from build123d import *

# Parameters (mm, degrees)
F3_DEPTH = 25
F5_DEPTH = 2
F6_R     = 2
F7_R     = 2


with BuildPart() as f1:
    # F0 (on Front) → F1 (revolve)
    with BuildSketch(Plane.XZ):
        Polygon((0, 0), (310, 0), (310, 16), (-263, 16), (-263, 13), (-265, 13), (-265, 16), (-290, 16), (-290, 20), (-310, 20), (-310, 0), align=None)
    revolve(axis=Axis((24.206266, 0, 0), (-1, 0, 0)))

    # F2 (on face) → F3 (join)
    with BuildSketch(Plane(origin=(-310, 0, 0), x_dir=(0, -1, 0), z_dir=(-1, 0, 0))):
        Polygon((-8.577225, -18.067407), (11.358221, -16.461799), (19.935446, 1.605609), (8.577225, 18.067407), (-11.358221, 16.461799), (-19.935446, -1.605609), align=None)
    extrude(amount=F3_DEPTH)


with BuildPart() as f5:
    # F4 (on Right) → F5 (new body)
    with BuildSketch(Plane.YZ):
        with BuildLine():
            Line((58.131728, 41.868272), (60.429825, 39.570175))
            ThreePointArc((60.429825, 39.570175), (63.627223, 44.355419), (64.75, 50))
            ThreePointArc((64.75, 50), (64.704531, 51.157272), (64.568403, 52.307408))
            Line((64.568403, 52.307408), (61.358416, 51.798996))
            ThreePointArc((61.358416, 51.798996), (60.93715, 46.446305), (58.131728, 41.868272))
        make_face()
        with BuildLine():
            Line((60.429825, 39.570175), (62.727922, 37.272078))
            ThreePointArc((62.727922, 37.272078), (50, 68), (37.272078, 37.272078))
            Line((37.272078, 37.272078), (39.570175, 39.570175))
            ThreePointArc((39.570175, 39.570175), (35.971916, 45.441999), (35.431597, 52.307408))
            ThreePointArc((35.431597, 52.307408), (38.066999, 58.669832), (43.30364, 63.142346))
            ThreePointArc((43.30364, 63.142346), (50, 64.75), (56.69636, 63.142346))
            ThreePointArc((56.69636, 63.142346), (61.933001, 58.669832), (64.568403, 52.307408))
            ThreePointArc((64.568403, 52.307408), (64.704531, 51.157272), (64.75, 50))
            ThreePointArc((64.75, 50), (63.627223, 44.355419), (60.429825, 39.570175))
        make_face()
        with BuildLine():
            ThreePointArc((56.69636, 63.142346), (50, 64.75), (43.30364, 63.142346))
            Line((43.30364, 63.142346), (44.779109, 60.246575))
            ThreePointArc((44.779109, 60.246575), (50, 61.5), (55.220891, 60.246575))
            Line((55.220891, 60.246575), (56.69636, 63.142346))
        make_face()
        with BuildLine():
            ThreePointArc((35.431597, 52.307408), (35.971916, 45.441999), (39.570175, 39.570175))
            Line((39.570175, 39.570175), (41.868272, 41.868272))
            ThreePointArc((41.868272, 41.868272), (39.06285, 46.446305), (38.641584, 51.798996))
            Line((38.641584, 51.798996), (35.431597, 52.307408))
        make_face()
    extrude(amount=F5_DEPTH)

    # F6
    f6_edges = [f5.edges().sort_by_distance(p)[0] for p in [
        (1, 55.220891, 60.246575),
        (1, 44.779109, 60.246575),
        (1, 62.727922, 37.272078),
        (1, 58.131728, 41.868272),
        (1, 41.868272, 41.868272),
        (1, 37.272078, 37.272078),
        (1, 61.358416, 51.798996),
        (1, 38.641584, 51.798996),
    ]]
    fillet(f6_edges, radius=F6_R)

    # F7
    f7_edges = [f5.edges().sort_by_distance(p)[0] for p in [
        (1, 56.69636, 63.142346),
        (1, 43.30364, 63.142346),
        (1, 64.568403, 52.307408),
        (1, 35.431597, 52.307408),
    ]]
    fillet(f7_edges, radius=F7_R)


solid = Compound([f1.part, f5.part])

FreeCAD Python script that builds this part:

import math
import FreeCAD as App
import Part
import Sketcher
from FreeCAD import Vector
Q = App.Units.Quantity


def edges_at(feature, points):
    """Names of the edges that pass closest to the given points."""
    edges = feature.Shape.Edges
    near = lambda p: min(range(len(edges)), key=lambda i: edges[i].distToShape(Part.Vertex(*p))[0])
    return sorted({f"Edge{near(p) + 1}" for p in points})


def add_polygon(sketch, points):
    """Adds a closed chain of lines whose ends are joined by coincident constraints."""
    first, n = sketch.GeometryCount, len(points)
    for a, b in zip(points, points[1:] + points[:1]):
        sketch.addGeometry(Part.LineSegment(App.Vector(*a, 0), App.Vector(*b, 0)), False)
    for i in range(n):
        sketch.addConstraint(Sketcher.Constraint("Coincident", first + i, 2, first + (i + 1) % n, 1))

doc = App.newDocument("Part")
body = doc.addObject("PartDesign::Body", "Body")

# Sketch on XZ plane
sketch1 = body.newObject("Sketcher::SketchObject", "Sketch")
sketch1.AttachmentSupport = (doc.getObject("XZ_Plane"), [""])
sketch1.MapMode = "FlatFace"
add_polygon(sketch1, [(310, 0), (310, 16), (-263, 16), (-263, 13), (-265, 13), (-265, 16), (-290, 16), (-290, 20), (-310, 20), (-310, 0)])  # lines 0-9
sketch1.addConstraint([
    Sketcher.Constraint("Vertical", 0),
    Sketcher.Constraint("Horizontal", 1),
    Sketcher.Constraint("Vertical", 2),
    Sketcher.Constraint("Horizontal", 3),
    Sketcher.Constraint("Vertical", 4),
    Sketcher.Constraint("Horizontal", 5),
    Sketcher.Constraint("Vertical", 6),
    Sketcher.Constraint("Horizontal", 7),
    Sketcher.Constraint("Vertical", 8),
    Sketcher.Constraint("Horizontal", 9),
    Sketcher.Constraint("Symmetric", 8, 2, 9, 2, -1, 1),
    Sketcher.Constraint("Horizontal", 1, 2, 4, 2),
    Sketcher.Constraint("Equal", 7, 8),
    Sketcher.Constraint("DistanceX", 1, 2, 1, 1, 573.0),
    Sketcher.Constraint("DistanceX", 3, 2, 3, 1, 2.0),
    Sketcher.Constraint("DistanceX", 5, 2, 5, 1, 25.0),
    Sketcher.Constraint("DistanceX", 7, 2, 7, 1, 20.0),
    Sketcher.Constraint("DistanceY", 0, 1, 0, 2, 16.0),
    Sketcher.Constraint("DistanceY", 2, 2, 2, 1, 3.0),
])
revolution = body.newObject("PartDesign::Revolution", "Revolution")
revolution.Profile = sketch1
revolution.ReferenceAxis = (sketch1, ["H_Axis"])
revolution.Angle = 360

# Sketch on YZ plane
sketch2 = body.newObject("Sketcher::SketchObject", "Sketch001")
sketch2.AttachmentSupport = (doc.getObject("YZ_Plane"), [""])
sketch2.MapMode = "FlatFace"
sketch2.AttachmentOffset = App.Placement(Vector(0, 0, -310), App.Rotation())
add_polygon(sketch2, [(9, -18), (-11, -16), (-20, 2), (-9, 18), (11, 16), (20, -2)])  # lines 0-5
sketch2.addConstraint([
    Sketcher.Constraint("Symmetric", 0, 2, 3, 2, -1, 1),
    Sketcher.Constraint("Symmetric", 1, 2, 4, 2, -1, 1),
    Sketcher.Constraint("Symmetric", 2, 2, 5, 2, -1, 1),
    Sketcher.Constraint("Equal", 0, 1),
    Sketcher.Constraint("Equal", 1, 2),
    Sketcher.Constraint("Distance", 0, 20.0),
    Sketcher.Constraint("DistanceY", 0, 2, -1, 1, 16.461799),
    Sketcher.Constraint("DistanceX", 0, 2, -1, 1, 11.358221),
    Sketcher.Constraint("DistanceY", -1, 1, 1, 2, 1.605609),
])
pad1 = body.newObject("PartDesign::Pad", "Pad")
pad1.Profile = sketch2
pad1.Length = 25
pad1.Reversed = True
body2 = doc.addObject("PartDesign::Body", "Body001")

# Sketch on YZ plane
sketch3 = body2.newObject("Sketcher::SketchObject", "Sketch002")
sketch3.AttachmentSupport = (doc.getObject("YZ_Plane001"), [""])
sketch3.MapMode = "FlatFace"
sketch3.addGeometry([
    Part.LineSegment(Vector(58.1, 41.9, 0), Vector(62.7, 37.3, 0)),  # 0
    Part.ArcOfCircle(Part.Circle(Vector(50, 50, 0), Vector(0, 0, 1), 18), math.radians(-45), math.radians(225)),  # 1
    Part.LineSegment(Vector(37.3, 37.3, 0), Vector(41.9, 41.9, 0)),  # 2
    Part.ArcOfCircle(Part.Circle(Vector(50, 50, 0), Vector(0, 0, 1), 11.5), math.radians(171), math.radians(225)),  # 3
    Part.LineSegment(Vector(38.6, 51.8, 0), Vector(35.4, 52.3, 0)),  # 4
    Part.ArcOfCircle(Part.Circle(Vector(50, 50, 0), Vector(0, 0, 1), 14.7), math.radians(117), math.radians(171)),  # 5
    Part.LineSegment(Vector(43.3, 63.1, 0), Vector(44.8, 60.2, 0)),  # 6
    Part.ArcOfCircle(Part.Circle(Vector(50, 50, 0), Vector(0, 0, 1), 11.5), math.radians(63), math.radians(117)),  # 7
    Part.LineSegment(Vector(55.2, 60.2, 0), Vector(56.7, 63.1, 0)),  # 8
    Part.ArcOfCircle(Part.Circle(Vector(50, 50, 0), Vector(0, 0, 1), 14.7), math.radians(9), math.radians(63)),  # 9
    Part.LineSegment(Vector(64.6, 52.3, 0), Vector(61.4, 51.8, 0)),  # 10
    Part.ArcOfCircle(Part.Circle(Vector(50, 50, 0), Vector(0, 0, 1), 11.5), math.radians(-45), math.radians(9)),  # 11
], False)
sketch3.addConstraint([
    Sketcher.Constraint("Coincident", 0, 2, 1, 1),
    Sketcher.Constraint("Coincident", 1, 2, 2, 1),
    Sketcher.Constraint("Coincident", 2, 2, 3, 2),
    Sketcher.Constraint("Coincident", 3, 1, 4, 1),
    Sketcher.Constraint("Coincident", 4, 2, 5, 2),
    Sketcher.Constraint("Coincident", 5, 1, 6, 1),
    Sketcher.Constraint("Coincident", 6, 2, 7, 2),
    Sketcher.Constraint("Coincident", 7, 1, 8, 1),
    Sketcher.Constraint("Coincident", 8, 2, 9, 2),
    Sketcher.Constraint("Coincident", 9, 1, 10, 1),
    Sketcher.Constraint("Coincident", 10, 2, 11, 2),
    Sketcher.Constraint("Coincident", 11, 1, 0, 1),
    Sketcher.Constraint("Coincident", 3, 3, 1, 3),
    Sketcher.Constraint("Coincident", 5, 3, 1, 3),
    Sketcher.Constraint("Coincident", 7, 3, 1, 3),
    Sketcher.Constraint("Coincident", 9, 3, 1, 3),
    Sketcher.Constraint("Coincident", 11, 3, 1, 3),
    Sketcher.Constraint("Equal", 3, 7),
    Sketcher.Constraint("Equal", 5, 9),
    Sketcher.Constraint("Equal", 7, 11),
    Sketcher.Constraint("Perpendicular", 0, 2),
    Sketcher.Constraint("Horizontal", 0, 2, 1, 2),
    Sketcher.Constraint("Horizontal", 6, 2, 7, 1),
    Sketcher.Constraint("Horizontal", 5, 1, 8, 2),
    Sketcher.Constraint("Horizontal", 4, 2, 9, 1),
    Sketcher.Constraint("Horizontal", 3, 1, 10, 2),
    Sketcher.Constraint("Horizontal", 2, 2, 11, 1),
    Sketcher.Constraint("Radius", 1, 18.0),
    Sketcher.Constraint("Radius", 3, 11.500001),
    Sketcher.Constraint("Angle", 4, Q("171 deg")),
    Sketcher.Constraint("Angle", 6, Q("-63 deg")),
    Sketcher.Constraint("Radius", 5, 14.749999),
    Sketcher.Constraint("DistanceX", -1, 1, 1, 3, 50.0),
    Sketcher.Constraint("DistanceY", -1, 1, 1, 3, 50.0),
    Sketcher.Constraint("DistanceX", -1, 1, 1, 2, 37.272078),
    Sketcher.Constraint("DistanceY", -1, 1, 4, 2, 52.307408),
    Sketcher.Constraint("DistanceX", -1, 1, 5, 1, 43.30364),
])
pad2 = body2.newObject("PartDesign::Pad", "Pad001")
pad2.Profile = sketch3
pad2.Length = 2
doc.recompute()

fillet = body2.newObject("PartDesign::Fillet", "Fillet")
fillet.Base = (pad2, edges_at(pad2, [
    (1, 55.221, 60.247),
    (1, 44.779, 60.247),
    (1, 62.728, 37.272),
    (1, 58.132, 41.868),
    (1, 41.868, 41.868),
    (1, 37.272, 37.272),
    (1, 61.358, 51.799),
    (1, 38.642, 51.799),
]))
fillet.Radius = 2
doc.recompute()

fillet2 = body2.newObject("PartDesign::Fillet", "Fillet001")
fillet2.Base = (fillet, edges_at(fillet, [
    (1, 56.696, 63.142),
    (1, 43.304, 63.142),
    (1, 64.568, 52.307),
    (1, 35.432, 52.307),
]))
fillet2.Radius = 2

doc.recompute()
